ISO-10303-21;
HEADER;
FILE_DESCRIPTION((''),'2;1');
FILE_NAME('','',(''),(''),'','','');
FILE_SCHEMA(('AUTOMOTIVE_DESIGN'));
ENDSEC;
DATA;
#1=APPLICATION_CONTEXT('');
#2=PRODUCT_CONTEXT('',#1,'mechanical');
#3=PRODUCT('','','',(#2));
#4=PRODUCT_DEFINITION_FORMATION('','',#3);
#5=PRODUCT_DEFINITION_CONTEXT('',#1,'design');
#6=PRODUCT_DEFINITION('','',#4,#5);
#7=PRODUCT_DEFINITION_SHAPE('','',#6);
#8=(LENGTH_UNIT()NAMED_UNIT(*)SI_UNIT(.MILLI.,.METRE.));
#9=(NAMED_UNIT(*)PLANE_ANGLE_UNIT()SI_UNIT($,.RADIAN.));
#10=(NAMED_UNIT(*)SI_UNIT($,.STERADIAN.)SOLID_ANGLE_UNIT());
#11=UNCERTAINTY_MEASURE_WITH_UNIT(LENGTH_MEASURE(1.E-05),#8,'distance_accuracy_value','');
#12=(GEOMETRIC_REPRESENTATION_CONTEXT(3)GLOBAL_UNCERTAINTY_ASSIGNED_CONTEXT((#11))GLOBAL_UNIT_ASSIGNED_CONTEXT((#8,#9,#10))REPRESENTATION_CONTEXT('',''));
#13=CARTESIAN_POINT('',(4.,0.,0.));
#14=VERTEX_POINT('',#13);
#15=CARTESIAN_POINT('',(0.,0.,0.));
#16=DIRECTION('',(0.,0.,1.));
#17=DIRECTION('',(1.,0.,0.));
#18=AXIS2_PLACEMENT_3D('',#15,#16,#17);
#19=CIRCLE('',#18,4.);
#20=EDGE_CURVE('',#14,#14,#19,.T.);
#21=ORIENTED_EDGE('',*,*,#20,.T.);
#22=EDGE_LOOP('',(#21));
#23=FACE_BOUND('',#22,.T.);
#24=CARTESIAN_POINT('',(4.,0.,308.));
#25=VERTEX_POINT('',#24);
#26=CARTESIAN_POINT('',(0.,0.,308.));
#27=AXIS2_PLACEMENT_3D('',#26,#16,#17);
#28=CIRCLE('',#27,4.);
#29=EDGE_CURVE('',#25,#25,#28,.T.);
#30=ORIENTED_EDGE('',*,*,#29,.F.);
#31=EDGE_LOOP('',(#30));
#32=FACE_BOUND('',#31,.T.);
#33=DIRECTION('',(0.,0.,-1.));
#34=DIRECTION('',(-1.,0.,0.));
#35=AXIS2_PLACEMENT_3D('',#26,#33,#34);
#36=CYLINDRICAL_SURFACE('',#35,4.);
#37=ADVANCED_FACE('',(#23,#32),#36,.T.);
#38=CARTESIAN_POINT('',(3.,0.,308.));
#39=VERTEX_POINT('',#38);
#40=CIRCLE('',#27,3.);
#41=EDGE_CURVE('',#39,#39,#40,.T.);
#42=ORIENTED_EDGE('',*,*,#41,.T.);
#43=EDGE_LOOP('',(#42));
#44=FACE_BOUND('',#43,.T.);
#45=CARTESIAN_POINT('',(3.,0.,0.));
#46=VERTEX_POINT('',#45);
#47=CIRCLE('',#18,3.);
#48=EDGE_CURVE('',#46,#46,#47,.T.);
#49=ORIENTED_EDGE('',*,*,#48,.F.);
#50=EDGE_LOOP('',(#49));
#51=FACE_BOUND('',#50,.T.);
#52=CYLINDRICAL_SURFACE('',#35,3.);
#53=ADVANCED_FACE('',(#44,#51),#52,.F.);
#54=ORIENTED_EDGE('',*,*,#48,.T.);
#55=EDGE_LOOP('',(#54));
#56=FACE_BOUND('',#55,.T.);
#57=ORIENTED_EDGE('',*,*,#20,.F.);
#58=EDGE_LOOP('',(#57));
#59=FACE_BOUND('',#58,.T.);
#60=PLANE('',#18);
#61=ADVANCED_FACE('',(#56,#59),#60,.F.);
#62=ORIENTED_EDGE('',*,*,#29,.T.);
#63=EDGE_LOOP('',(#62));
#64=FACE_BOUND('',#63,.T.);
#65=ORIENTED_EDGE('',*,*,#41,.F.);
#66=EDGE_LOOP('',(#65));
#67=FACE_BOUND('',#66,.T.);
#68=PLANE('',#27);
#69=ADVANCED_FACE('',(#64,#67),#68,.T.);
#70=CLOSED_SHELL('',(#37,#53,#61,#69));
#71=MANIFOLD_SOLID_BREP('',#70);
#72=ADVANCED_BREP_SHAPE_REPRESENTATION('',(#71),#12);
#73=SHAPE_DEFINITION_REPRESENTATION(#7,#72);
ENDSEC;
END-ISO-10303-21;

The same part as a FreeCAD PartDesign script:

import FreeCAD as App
import Part
import Sketcher
from FreeCAD import Vector

doc = App.newDocument("Part")
params = doc.addObject("Spreadsheet::Sheet", "Params")
for row, (alias, value) in enumerate([
    ("sketch1_diameter", "8 mm"),
    ("sketch1_diameter2", "6 mm"),
    ("pad1_length", "308 mm"),
], start=1):
    params.set(f"A{row}", alias)
    params.set(f"B{row}", "=" + value)
    params.setAlias(f"B{row}", alias)

body = doc.addObject("PartDesign::Body", "Body")

sketch1 = doc.addObject("Sketcher::SketchObject", "Sketch")
body.addObject(sketch1)
sketch1.AttachmentSupport = (doc.XY_Plane, [""])
sketch1.MapMode = "FlatFace"
sketch1.addGeometry(Part.Circle(Vector(0, 0, 0), Vector(0, 0, 1), 4), False)
sketch1.addGeometry(Part.Circle(Vector(0, 0, 0), Vector(0, 0, 1), 3), False)
sketch1.addConstraint(Sketcher.Constraint("Coincident", 0, 3, -1, 1))
sketch1.addConstraint(Sketcher.Constraint("Coincident", 1, 3, -1, 1))
sketch1.addConstraint(Sketcher.Constraint("Diameter", 0, 8.0))
sketch1.addConstraint(Sketcher.Constraint("Diameter", 1, 6.0))
sketch1.setExpression("Constraints[2]", "Params.sketch1_diameter")
sketch1.setExpression("Constraints[3]", "Params.sketch1_diameter2")
pad1 = doc.addObject("PartDesign::Pad", "Pad")
body.addObject(pad1)
pad1.Profile = sketch1
pad1.setExpression("Length", "Params.pad1_length")

doc.recompute()
